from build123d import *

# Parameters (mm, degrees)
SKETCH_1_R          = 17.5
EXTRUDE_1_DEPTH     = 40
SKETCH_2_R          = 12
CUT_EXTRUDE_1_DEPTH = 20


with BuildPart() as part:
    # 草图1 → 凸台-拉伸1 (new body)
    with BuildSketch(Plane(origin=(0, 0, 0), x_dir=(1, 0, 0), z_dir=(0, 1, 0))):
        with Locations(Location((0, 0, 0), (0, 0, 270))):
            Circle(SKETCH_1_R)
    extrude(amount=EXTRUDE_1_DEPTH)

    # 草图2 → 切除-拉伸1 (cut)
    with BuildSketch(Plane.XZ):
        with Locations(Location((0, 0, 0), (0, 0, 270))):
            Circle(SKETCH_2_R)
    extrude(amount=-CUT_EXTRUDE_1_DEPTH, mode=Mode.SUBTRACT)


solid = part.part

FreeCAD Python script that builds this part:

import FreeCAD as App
import Part
import Sketcher

V = App.Vector

doc = App.newDocument("Part")
body = doc.addObject("PartDesign::Body", "Body")

sketch1 = body.newObject("Sketcher::SketchObject", "Sketch")
sketch1.AttachmentSupport = (doc.getObject("XZ_Plane"), [""])
sketch1.MapMode = "FlatFace"
sketch1.addGeometry(Part.Circle(V(0, 0, 0), V(0, 0, 1), 18), False)
sketch1.addConstraint(Sketcher.Constraint("Coincident", 0, 3, -1, 1))
sketch1.addConstraint(Sketcher.Constraint("Diameter", 0, 35.0))
pad1 = body.newObject("PartDesign::Pad", "Pad")
pad1.Profile = sketch1
pad1.Length = 40
pad1.Reversed = True

sketch2 = body.newObject("Sketcher::SketchObject", "Sketch001")
sketch2.AttachmentSupport = (doc.getObject("XZ_Plane"), [""])
sketch2.MapMode = "FlatFace"
sketch2.addGeometry(Part.Circle(V(0, 0, 0), V(0, 0, 1), 12), False)
sketch2.addConstraint(Sketcher.Constraint("Coincident", 0, 3, -1, 1))
sketch2.addConstraint(Sketcher.Constraint("Diameter", 0, 24.0))
pocket1 = body.newObject("PartDesign::Pocket", "Pocket")
pocket1.Profile = sketch2
pocket1.Length = 20

doc.recompute()
